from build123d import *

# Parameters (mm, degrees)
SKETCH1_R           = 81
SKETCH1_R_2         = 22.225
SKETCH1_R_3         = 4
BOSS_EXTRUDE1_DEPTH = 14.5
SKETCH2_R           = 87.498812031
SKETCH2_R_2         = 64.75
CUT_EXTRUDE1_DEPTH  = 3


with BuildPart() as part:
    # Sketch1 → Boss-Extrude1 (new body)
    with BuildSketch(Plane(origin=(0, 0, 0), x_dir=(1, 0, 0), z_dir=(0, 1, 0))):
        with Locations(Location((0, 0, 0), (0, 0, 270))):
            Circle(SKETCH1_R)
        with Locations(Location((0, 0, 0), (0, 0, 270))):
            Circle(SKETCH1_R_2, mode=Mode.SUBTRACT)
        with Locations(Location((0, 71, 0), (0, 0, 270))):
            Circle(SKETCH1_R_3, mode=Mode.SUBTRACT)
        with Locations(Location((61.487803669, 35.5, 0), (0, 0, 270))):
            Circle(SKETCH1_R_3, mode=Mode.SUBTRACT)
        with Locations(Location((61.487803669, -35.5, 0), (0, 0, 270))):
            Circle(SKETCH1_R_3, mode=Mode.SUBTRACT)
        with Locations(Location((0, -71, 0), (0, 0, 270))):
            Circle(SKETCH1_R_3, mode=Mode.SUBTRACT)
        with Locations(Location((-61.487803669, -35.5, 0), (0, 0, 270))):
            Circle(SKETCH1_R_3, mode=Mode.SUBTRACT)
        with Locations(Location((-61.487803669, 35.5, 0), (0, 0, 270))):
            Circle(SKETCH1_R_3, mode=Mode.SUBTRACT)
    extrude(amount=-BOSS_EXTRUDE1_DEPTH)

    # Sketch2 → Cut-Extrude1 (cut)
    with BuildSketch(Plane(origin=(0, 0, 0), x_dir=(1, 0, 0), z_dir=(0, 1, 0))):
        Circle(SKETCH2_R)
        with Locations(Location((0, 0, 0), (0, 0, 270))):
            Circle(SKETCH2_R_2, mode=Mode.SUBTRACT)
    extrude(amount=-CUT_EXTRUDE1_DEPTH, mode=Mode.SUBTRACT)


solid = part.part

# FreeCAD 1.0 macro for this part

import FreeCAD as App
import Part
import Sketcher
from FreeCAD import Vector

doc = App.newDocument("Part")
body = doc.addObject("PartDesign::Body", "Body")

# Sketch on XZ plane
sketch1 = body.newObject("Sketcher::SketchObject", "Sketch")
sketch1.AttachmentSupport = (doc.getObject("XZ_Plane"), [""])
sketch1.MapMode = "FlatFace"
sketch1.addGeometry([
    Part.Circle(Vector(0, 0, 0), Vector(0, 0, 1), 81),  # 0
    Part.Circle(Vector(-61.5, -35.5, 0), Vector(0, 0, 1), 4),  # 1
    Part.Circle(Vector(0, -71, 0), Vector(0, 0, 1), 4),  # 2
    Part.Circle(Vector(-61.5, 35.5, 0), Vector(0, 0, 1), 4),  # 3
    Part.Circle(Vector(61.5, -35.5, 0), Vector(0, 0, 1), 4),  # 4
    Part.Circle(Vector(0, 0, 0), Vector(0, 0, 1), 22.2),  # 5
    Part.Circle(Vector(0, 71, 0), Vector(0, 0, 1), 4),  # 6
    Part.Circle(Vector(61.5, 35.5, 0), Vector(0, 0, 1), 4),  # 7
], False)
sketch1.addConstraint([
    Sketcher.Constraint("Coincident", 0, 3, -1, 1),
    Sketcher.Constraint("Coincident", 5, 3, -1, 1),
    Sketcher.Constraint("Equal", 1, 2),
    Sketcher.Constraint("Equal", 2, 3),
    Sketcher.Constraint("Equal", 3, 4),
    Sketcher.Constraint("Equal", 4, 6),
    Sketcher.Constraint("Equal", 6, 7),
    Sketcher.Constraint("Symmetric", 3, 3, 4, 3, -1, 1),
    Sketcher.Constraint("Symmetric", 2, 3, 6, 3, -1, 1),
    Sketcher.Constraint("Symmetric", 1, 3, 7, 3, -1, 1),
    Sketcher.Constraint("Symmetric", 1, 3, 4, 3, -2),
    Sketcher.Constraint("PointOnObject", 2, 3, -2),
    Sketcher.Constraint("Diameter", 0, 162.0),
    Sketcher.Constraint("Diameter", 1, 8.0),
    Sketcher.Constraint("Diameter", 5, 44.45),
    Sketcher.Constraint("DistanceY", 2, 3, -1, 1, 71.0),
    Sketcher.Constraint("DistanceY", 1, 3, 3, 3, 71.0),
    Sketcher.Constraint("DistanceX", 1, 3, -1, 1, 61.487804),
])
pad1 = body.newObject("PartDesign::Pad", "Pad")
pad1.Profile = sketch1
pad1.Length = 14.5

# Sketch on XZ plane
sketch2 = body.newObject("Sketcher::SketchObject", "Sketch001")
sketch2.AttachmentSupport = (doc.getObject("XZ_Plane"), [""])
sketch2.MapMode = "FlatFace"
sketch2.addGeometry([
    Part.Circle(Vector(0, 0, 0), Vector(0, 0, 1), 87),
    Part.Circle(Vector(0, 0, 0), Vector(0, 0, 1), 65),
], False)
sketch2.addConstraint([
    Sketcher.Constraint("Coincident", 0, 3, -1, 1),
    Sketcher.Constraint("Coincident", 1, 3, -1, 1),
    Sketcher.Constraint("Diameter", 1, 129.5),
    Sketcher.Constraint("Diameter", 0, 174.997624),
])
pocket1 = body.newObject("PartDesign::Pocket", "Pocket")
pocket1.Profile = sketch2
pocket1.Length = 3
pocket1.Reversed = True

doc.recompute()
